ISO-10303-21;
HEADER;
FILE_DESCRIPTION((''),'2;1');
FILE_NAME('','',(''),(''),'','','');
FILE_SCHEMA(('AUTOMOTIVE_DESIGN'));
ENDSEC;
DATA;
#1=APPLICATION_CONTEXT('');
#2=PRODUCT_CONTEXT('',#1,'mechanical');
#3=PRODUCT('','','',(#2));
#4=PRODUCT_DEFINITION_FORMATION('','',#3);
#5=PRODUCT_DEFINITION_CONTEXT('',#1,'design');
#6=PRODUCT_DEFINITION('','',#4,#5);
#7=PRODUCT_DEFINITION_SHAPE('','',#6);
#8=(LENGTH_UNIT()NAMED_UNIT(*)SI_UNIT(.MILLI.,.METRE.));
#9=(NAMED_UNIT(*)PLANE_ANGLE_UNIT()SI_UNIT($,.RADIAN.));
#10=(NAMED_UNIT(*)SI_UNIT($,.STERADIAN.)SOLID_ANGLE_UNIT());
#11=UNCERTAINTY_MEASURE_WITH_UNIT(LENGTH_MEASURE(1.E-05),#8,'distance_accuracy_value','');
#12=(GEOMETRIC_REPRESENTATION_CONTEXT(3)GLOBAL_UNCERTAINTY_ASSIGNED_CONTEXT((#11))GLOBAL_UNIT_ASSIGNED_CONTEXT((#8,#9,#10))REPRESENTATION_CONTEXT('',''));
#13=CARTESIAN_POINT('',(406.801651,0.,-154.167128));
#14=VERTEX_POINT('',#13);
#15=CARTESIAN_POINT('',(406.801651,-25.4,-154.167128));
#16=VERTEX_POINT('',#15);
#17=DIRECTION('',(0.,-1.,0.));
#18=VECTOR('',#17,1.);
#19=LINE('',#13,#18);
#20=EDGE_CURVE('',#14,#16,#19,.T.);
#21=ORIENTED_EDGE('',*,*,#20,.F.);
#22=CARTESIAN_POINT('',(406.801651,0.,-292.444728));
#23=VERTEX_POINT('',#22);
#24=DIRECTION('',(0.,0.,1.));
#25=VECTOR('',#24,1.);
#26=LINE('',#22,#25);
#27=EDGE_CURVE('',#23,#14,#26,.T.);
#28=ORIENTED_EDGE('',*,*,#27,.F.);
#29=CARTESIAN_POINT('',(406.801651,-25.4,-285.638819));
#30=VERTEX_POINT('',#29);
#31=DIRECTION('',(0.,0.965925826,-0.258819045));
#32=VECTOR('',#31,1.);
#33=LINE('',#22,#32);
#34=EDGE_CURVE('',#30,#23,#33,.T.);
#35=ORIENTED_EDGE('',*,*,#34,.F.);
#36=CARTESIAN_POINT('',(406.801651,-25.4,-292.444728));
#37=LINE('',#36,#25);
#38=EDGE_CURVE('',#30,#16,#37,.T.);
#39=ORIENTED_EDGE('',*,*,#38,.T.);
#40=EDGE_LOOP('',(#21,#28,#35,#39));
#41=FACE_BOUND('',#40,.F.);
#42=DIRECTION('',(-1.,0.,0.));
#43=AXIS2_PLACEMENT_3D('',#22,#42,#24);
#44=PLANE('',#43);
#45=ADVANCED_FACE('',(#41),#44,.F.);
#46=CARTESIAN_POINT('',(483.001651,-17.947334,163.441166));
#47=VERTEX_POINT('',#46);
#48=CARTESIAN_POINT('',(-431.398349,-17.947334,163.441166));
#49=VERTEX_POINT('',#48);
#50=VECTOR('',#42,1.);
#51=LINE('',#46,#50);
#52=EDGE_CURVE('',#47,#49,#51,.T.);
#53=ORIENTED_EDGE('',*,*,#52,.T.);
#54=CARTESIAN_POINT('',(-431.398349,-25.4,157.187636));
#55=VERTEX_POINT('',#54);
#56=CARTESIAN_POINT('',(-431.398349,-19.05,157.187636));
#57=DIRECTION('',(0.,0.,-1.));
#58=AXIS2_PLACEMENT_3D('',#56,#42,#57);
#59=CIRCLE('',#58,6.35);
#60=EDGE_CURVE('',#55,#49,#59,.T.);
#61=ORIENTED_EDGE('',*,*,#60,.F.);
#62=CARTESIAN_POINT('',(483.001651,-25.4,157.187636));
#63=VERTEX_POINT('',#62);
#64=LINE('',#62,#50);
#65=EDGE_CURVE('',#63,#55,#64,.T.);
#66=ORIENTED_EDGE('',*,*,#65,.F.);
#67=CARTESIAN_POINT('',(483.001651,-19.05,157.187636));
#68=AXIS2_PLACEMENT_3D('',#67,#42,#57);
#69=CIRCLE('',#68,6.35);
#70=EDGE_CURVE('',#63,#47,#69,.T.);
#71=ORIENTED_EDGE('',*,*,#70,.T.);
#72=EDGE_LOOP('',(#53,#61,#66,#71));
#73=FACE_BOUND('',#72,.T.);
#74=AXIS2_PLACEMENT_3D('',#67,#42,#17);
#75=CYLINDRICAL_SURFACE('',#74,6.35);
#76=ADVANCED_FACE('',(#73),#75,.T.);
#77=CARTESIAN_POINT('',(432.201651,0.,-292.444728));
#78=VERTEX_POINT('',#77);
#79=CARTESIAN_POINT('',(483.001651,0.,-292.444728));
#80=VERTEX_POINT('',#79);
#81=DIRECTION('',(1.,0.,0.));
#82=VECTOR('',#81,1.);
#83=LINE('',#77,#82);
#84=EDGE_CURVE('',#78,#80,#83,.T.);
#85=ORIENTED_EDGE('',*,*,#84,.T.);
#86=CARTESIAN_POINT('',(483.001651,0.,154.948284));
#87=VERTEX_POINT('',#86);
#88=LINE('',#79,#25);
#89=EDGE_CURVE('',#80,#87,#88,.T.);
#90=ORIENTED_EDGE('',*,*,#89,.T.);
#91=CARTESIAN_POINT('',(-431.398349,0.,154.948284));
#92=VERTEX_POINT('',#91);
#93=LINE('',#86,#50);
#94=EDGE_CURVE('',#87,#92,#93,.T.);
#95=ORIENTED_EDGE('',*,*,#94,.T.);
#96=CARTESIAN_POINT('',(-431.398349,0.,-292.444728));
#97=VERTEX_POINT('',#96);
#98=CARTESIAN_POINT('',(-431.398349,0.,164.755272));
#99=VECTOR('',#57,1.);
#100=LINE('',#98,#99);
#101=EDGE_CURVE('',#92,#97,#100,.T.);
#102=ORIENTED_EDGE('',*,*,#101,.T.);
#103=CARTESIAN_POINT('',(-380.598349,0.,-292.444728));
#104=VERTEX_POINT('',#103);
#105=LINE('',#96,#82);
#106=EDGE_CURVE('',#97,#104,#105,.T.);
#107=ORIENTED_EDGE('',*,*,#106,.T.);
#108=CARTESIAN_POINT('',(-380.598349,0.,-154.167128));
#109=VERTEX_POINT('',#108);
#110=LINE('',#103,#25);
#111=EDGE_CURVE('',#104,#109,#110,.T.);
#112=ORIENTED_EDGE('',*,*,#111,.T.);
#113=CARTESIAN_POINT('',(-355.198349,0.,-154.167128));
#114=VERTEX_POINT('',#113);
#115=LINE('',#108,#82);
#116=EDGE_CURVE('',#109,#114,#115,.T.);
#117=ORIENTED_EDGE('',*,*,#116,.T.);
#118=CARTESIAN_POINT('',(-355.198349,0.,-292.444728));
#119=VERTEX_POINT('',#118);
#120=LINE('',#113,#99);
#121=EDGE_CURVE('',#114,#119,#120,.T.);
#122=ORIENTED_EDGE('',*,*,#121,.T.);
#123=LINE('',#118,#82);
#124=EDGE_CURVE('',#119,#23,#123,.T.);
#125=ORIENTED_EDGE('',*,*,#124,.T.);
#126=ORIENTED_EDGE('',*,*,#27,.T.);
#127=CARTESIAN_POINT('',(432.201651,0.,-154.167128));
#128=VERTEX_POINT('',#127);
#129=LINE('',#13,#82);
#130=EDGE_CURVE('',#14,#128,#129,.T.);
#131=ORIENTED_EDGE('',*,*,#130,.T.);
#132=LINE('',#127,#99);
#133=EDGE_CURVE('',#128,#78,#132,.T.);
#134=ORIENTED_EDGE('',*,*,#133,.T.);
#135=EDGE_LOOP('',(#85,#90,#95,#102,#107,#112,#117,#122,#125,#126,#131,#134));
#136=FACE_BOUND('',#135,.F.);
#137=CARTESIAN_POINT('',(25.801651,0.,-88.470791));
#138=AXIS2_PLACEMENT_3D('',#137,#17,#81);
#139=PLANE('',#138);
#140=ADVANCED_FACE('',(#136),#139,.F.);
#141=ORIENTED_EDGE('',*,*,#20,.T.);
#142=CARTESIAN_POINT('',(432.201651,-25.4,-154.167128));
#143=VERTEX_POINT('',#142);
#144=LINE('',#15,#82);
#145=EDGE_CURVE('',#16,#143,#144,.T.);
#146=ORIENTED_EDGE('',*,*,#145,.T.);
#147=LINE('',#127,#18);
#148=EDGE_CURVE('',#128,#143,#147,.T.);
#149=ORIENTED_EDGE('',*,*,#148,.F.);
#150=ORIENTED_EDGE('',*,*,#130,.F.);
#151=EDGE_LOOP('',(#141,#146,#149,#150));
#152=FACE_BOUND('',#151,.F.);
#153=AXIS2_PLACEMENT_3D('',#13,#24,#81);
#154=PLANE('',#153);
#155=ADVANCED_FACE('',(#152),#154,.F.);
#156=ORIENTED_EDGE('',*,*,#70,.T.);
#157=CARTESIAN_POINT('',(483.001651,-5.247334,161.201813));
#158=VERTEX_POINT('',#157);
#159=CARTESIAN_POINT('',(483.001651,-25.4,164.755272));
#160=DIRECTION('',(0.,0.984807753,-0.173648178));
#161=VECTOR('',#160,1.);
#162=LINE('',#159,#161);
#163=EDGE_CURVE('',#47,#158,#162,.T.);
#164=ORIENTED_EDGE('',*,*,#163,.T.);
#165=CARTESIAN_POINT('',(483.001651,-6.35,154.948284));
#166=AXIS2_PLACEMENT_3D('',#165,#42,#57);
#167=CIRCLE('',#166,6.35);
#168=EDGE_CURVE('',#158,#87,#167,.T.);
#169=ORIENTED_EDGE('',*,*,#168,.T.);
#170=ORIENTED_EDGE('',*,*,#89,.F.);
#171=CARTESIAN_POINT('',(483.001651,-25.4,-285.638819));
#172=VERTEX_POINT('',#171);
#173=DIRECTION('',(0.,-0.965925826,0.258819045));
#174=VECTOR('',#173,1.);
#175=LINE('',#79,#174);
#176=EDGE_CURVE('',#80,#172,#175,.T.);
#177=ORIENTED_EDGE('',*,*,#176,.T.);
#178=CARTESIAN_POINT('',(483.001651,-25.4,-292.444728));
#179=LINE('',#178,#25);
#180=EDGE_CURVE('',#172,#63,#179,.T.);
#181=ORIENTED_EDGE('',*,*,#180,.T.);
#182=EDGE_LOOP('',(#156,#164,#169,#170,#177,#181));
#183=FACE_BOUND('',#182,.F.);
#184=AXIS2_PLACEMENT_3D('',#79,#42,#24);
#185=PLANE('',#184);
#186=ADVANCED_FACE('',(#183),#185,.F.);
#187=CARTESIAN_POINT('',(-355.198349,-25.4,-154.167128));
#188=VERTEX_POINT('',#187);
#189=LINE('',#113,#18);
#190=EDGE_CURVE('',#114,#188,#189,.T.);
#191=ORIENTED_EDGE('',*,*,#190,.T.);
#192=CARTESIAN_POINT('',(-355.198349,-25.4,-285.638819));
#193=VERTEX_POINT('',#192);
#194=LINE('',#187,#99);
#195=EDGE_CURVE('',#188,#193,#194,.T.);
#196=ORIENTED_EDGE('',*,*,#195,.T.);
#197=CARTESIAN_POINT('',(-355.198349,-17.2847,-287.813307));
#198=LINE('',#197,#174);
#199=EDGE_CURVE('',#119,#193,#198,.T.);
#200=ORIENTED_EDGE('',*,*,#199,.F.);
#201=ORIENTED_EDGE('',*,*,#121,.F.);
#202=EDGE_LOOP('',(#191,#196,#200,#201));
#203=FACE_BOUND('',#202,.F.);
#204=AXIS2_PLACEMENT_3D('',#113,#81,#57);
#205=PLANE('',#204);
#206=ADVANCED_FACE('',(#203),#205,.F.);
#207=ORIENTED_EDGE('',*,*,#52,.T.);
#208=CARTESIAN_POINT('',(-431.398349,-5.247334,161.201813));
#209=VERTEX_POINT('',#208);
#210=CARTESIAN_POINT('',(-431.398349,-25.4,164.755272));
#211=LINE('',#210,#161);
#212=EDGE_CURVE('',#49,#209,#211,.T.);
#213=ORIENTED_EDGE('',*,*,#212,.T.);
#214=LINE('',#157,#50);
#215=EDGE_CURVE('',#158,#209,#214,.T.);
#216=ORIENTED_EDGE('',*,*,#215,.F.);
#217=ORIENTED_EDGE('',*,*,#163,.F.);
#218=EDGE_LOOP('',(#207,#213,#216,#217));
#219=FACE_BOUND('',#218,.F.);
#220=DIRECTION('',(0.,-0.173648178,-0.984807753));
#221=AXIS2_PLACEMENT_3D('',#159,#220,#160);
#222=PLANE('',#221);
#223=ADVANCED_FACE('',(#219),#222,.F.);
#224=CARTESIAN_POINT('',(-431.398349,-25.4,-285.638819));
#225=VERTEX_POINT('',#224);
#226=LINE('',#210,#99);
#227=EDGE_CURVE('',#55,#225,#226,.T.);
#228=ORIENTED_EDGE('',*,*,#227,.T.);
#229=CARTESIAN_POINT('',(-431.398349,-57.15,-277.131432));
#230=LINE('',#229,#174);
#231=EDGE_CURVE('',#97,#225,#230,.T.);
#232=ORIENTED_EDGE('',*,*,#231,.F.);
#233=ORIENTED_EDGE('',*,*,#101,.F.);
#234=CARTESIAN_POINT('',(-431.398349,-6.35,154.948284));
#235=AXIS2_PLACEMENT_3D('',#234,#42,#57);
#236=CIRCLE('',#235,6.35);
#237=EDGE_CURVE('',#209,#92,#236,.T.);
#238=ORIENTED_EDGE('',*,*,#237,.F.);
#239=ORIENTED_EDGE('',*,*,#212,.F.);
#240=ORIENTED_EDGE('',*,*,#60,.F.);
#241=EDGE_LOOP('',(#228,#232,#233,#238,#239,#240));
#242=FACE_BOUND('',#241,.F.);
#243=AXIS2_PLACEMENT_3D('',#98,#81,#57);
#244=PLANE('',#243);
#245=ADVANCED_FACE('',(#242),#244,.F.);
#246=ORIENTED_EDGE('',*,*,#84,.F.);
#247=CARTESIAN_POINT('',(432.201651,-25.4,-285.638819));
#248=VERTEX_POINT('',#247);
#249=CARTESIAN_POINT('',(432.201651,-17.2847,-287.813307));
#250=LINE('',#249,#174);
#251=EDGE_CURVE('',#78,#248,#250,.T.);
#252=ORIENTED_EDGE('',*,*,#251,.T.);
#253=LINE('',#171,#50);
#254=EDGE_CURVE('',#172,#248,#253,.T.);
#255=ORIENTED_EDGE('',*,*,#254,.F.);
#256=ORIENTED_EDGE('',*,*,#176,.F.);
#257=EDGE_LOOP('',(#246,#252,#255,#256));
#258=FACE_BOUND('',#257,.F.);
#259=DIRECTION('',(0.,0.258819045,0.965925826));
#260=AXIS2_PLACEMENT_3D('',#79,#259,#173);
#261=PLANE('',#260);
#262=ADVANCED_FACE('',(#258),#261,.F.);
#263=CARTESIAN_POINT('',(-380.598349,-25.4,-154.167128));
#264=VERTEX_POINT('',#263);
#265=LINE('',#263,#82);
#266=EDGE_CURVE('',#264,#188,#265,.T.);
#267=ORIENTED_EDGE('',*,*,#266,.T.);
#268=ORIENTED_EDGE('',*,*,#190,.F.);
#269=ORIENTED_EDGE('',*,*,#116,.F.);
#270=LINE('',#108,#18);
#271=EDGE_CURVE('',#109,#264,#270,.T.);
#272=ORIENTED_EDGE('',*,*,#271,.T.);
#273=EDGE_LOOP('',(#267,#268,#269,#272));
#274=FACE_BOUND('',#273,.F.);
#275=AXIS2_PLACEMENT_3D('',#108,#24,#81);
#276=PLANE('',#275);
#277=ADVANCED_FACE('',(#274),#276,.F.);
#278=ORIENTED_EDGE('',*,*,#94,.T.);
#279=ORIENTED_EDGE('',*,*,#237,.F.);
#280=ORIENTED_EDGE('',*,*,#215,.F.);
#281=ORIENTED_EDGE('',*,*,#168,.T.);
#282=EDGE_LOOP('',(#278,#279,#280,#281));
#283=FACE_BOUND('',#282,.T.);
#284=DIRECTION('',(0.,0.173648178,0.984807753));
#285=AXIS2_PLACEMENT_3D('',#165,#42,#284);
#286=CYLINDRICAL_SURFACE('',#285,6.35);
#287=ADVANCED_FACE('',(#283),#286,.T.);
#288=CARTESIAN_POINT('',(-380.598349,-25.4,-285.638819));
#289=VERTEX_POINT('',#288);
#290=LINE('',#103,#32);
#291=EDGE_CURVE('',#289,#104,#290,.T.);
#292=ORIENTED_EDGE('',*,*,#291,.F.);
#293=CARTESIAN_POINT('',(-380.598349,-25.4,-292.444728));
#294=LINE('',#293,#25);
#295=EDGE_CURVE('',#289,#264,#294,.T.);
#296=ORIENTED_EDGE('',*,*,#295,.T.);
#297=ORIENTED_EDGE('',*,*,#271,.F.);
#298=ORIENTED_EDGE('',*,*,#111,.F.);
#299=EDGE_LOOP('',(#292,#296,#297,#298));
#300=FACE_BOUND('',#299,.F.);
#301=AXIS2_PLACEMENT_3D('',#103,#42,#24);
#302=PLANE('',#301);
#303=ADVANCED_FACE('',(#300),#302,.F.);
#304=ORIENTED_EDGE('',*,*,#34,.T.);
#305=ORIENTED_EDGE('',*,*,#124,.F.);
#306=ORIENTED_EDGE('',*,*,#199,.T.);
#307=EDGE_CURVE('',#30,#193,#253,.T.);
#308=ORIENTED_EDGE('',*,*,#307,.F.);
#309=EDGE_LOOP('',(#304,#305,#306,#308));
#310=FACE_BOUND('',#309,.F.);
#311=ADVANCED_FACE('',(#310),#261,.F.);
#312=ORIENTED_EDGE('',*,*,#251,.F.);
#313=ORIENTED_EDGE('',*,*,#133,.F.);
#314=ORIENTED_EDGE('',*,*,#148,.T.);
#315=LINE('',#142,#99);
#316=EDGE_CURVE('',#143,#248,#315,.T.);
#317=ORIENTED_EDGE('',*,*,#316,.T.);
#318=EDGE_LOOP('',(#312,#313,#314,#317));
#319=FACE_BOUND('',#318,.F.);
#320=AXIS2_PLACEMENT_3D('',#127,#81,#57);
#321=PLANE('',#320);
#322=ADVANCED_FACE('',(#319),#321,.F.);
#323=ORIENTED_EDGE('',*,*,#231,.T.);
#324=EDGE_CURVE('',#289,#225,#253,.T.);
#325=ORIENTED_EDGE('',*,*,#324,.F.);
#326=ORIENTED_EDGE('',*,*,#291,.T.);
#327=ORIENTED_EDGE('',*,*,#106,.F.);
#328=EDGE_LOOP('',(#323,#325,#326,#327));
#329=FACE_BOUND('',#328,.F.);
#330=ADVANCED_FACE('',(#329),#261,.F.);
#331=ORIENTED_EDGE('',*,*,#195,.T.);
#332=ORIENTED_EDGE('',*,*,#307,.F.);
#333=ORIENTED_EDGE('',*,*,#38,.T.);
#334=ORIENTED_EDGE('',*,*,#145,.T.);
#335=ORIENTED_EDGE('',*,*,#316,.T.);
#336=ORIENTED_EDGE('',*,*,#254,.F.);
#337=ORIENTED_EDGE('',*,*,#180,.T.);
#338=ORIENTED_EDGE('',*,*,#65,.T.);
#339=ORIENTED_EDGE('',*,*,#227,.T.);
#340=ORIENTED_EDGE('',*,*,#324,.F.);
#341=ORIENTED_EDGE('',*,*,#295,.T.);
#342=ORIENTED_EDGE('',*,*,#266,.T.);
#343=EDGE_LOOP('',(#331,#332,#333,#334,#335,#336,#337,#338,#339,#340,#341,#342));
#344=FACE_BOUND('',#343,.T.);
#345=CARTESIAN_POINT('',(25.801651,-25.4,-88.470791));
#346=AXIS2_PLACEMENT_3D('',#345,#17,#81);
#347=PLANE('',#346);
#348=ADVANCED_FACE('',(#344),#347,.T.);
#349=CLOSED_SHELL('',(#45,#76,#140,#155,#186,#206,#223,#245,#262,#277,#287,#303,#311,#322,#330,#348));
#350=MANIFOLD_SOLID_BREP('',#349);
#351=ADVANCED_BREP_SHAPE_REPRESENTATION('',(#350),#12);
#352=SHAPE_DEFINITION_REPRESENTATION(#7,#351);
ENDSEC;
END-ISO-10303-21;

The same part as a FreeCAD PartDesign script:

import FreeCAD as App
import Part
import Sketcher
Q = App.Units.Quantity


def edges_at(feature, points):
    """Names of the edges that pass closest to the given points."""
    edges = feature.Shape.Edges
    near = lambda p: min(range(len(edges)), key=lambda i: edges[i].distToShape(Part.Vertex(*p))[0])
    return sorted({f"Edge{near(p) + 1}" for p in points})


def add_polygon(sketch, points):
    """Adds a closed chain of lines whose ends are joined by coincident constraints."""
    first, n = sketch.GeometryCount, len(points)
    for a, b in zip(points, points[1:] + points[:1]):
        sketch.addGeometry(Part.LineSegment(App.Vector(*a, 0), App.Vector(*b, 0)), False)
    for i in range(n):
        sketch.addConstraint(Sketcher.Constraint("Coincident", first + i, 2, first + (i + 1) % n, 1))

doc = App.newDocument("Part")
body = doc.addObject("PartDesign::Body", "Body")

sketch1 = doc.addObject("Sketcher::SketchObject", "Sketch")
body.addObject(sketch1)
sketch1.AttachmentSupport = (doc.XZ_Plane, [""])
sketch1.MapMode = "FlatFace"
add_polygon(sketch1, [(483.001651, 164.755272), (-431.398349, 164.755272), (-431.398349, -292.444728), (-380.598349, -292.444728), (-380.598349, -154.167128), (-355.198349, -154.167128), (-355.198349, -292.444728), (406.801651, -292.444728), (406.801651, -154.167128), (432.201651, -154.167128), (432.201651, -292.444728), (483.001651, -292.444728)])
sketch1.addConstraint(Sketcher.Constraint("Horizontal", 0))
sketch1.addConstraint(Sketcher.Constraint("Vertical", 1))
sketch1.addConstraint(Sketcher.Constraint("Horizontal", 2))
sketch1.addConstraint(Sketcher.Constraint("Vertical", 3))
sketch1.addConstraint(Sketcher.Constraint("Horizontal", 4))
sketch1.addConstraint(Sketcher.Constraint("Vertical", 5))
sketch1.addConstraint(Sketcher.Constraint("Horizontal", 6))
sketch1.addConstraint(Sketcher.Constraint("Vertical", 7))
sketch1.addConstraint(Sketcher.Constraint("Horizontal", 8))
sketch1.addConstraint(Sketcher.Constraint("Vertical", 9))
sketch1.addConstraint(Sketcher.Constraint("Horizontal", 10))
sketch1.addConstraint(Sketcher.Constraint("Vertical", 11))
sketch1.addConstraint(Sketcher.Constraint("Horizontal", 2, 2, 5, 2))
sketch1.addConstraint(Sketcher.Constraint("Horizontal", 4, 2, 7, 2))
sketch1.addConstraint(Sketcher.Constraint("Horizontal", 6, 2, 9, 2))
sketch1.addConstraint(Sketcher.Constraint("Equal", 4, 8))
sketch1.addConstraint(Sketcher.Constraint("Equal", 2, 10))
sketch1.addConstraint(Sketcher.Constraint("DistanceX", 0, 2, 0, 1, Q("36 in")))
sketch1.addConstraint(Sketcher.Constraint("DistanceX", 2, 1, 2, 2, Q("2 in")))
sketch1.addConstraint(Sketcher.Constraint("DistanceX", 4, 1, 4, 2, Q("1 in")))
sketch1.addConstraint(Sketcher.Constraint("DistanceY", 1, 2, 1, 1, Q("18 in")))
sketch1.addConstraint(Sketcher.Constraint("DistanceY", 3, 1, 3, 2, Q("5.444 in")))
sketch1.addConstraint(Sketcher.Constraint("DistanceX", 0, 2, -1, 1, 431.398349))
sketch1.addConstraint(Sketcher.Constraint("DistanceY", -1, 1, 0, 2, 164.755272))
pad1 = doc.addObject("PartDesign::Pad", "Pad")
body.addObject(pad1)
pad1.Profile = sketch1
pad1.Length = Q("1 in")

sketch2 = doc.addObject("Sketcher::SketchObject", "Sketch001")
body.addObject(sketch2)
sketch2.AttachmentSupport = (doc.YZ_Plane, [""])
sketch2.MapMode = "FlatFace"
sketch2.AttachmentOffset = App.Placement(App.Vector(0, 0, 483.001651), App.Rotation())
add_polygon(sketch2, [(0, 164.755272), (-25.4, 164.755272), (0, 160.276566)])
sketch2.addConstraint(Sketcher.Constraint("Horizontal", 0))
sketch2.addConstraint(Sketcher.Constraint("Vertical", 2))
sketch2.addConstraint(Sketcher.Constraint("PointOnObject", 1, 2, -2))
sketch2.addConstraint(Sketcher.Constraint("DistanceX", 0, 2, 0, 1, Q("1 in")))
sketch2.addConstraint(Sketcher.Constraint("Angle", 1, Q("-10 deg")))
sketch2.addConstraint(Sketcher.Constraint("DistanceY", -1, 1, 0, 2, 164.755272))
pocket1 = doc.addObject("PartDesign::Pocket", "Pocket")
body.addObject(pocket1)
pocket1.Profile = sketch2
pocket1.Length = Q("36 in")
doc.recompute()

fillet = doc.addObject("PartDesign::Fillet", "Fillet")
body.addObject(fillet)
fillet.Base = (pocket1, edges_at(pocket1, [(25.802, 0, 160.277), (25.802, -25.4, 164.755)]))
fillet.Radius = Q("0.25 in")

sketch3 = doc.addObject("Sketcher::SketchObject", "Sketch002")
body.addObject(sketch3)
sketch3.AttachmentSupport = (doc.YZ_Plane, [""])
sketch3.MapMode = "FlatFace"
sketch3.AttachmentOffset = App.Placement(App.Vector(0, 0, 483.001651), App.Rotation())
add_polygon(sketch3, [(-25.4, -292.444728), (0, -292.444728), (-25.4, -285.638819)])
sketch3.addConstraint(Sketcher.Constraint("Horizontal", 0))
sketch3.addConstraint(Sketcher.Constraint("Vertical", 2))
sketch3.addConstraint(Sketcher.Constraint("PointOnObject", 0, 2, -2))
sketch3.addConstraint(Sketcher.Constraint("DistanceX", 0, 1, 0, 2, Q("1 in")))
sketch3.addConstraint(Sketcher.Constraint("Angle", 1, Q("165 deg")))
sketch3.addConstraint(Sketcher.Constraint("DistanceY", 0, 2, -1, 1, 292.444728))
pocket2 = doc.addObject("PartDesign::Pocket", "Pocket001")
body.addObject(pocket2)
pocket2.Profile = sketch3
pocket2.Type = "ThroughAll"

doc.recompute()
